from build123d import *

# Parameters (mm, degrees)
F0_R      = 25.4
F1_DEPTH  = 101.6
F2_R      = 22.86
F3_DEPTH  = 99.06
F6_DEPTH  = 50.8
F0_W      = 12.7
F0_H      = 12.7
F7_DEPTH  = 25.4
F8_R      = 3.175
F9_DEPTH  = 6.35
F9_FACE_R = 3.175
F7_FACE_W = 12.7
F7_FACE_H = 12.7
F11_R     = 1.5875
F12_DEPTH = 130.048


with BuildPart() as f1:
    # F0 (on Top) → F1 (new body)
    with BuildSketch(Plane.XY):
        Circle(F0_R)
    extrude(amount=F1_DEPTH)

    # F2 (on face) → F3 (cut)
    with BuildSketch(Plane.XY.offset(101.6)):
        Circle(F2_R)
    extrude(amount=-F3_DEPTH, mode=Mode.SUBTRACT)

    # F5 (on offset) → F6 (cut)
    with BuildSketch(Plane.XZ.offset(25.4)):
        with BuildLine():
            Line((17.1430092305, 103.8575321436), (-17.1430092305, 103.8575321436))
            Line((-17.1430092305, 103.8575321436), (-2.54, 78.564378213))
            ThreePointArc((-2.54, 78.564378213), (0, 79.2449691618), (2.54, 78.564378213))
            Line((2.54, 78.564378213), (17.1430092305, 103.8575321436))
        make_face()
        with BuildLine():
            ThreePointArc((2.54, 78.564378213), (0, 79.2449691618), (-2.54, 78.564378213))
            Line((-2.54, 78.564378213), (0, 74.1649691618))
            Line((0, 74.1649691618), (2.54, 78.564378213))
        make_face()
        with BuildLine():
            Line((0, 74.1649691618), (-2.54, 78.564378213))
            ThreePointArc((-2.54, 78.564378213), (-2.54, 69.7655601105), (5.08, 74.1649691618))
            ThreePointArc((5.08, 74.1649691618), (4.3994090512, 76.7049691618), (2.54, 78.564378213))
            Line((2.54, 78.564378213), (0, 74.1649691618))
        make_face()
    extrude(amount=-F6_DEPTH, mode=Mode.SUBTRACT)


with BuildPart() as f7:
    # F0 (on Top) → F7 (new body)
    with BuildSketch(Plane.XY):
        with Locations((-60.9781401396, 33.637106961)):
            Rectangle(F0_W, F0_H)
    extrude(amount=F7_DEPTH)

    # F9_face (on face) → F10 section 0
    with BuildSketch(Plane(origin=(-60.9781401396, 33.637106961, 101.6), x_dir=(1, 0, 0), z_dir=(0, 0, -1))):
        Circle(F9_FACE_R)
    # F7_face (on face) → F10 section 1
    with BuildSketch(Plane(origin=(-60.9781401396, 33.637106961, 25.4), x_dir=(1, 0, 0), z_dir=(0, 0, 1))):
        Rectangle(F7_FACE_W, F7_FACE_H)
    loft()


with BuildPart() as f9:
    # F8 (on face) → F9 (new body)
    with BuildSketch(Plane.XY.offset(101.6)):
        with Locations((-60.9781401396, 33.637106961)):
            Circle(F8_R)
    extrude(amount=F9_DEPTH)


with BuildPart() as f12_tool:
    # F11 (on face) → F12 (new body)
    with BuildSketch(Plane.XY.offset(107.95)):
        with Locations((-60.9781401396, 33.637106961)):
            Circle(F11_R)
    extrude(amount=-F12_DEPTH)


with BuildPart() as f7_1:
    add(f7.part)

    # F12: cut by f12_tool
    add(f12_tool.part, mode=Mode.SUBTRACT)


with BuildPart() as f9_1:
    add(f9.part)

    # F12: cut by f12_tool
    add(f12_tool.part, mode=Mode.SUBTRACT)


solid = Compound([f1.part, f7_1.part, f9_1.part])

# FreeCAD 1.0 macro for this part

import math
import FreeCAD as App
import Part
import Sketcher
Q = App.Units.Quantity

doc = App.newDocument("Part")
body = doc.addObject("PartDesign::Body", "Body")

# Sketch on XY plane
sketch1 = body.newObject("Sketcher::SketchObject", "Sketch")
sketch1.AttachmentSupport = (doc.getObject("XY_Plane"), [""])
sketch1.MapMode = "FlatFace"
sketch1.addGeometry(Part.Circle(App.Vector(0, 0, 0), App.Vector(0, 0, 1), 25), False)
sketch1.addConstraint([
    Sketcher.Constraint("Coincident", 0, 3, -1, 1),
    Sketcher.Constraint("Diameter", 0, Q("2 in")),
])
pad1 = body.newObject("PartDesign::Pad", "Pad")
pad1.Profile = sketch1
pad1.Length = Q("4 in")

# Sketch on XY plane
sketch2 = body.newObject("Sketcher::SketchObject", "Sketch001")
sketch2.AttachmentSupport = (doc.getObject("XY_Plane"), [""])
sketch2.MapMode = "FlatFace"
sketch2.AttachmentOffset = App.Placement(App.Vector(0, 0, 4 * 25.4), App.Rotation())
sketch2.addGeometry(Part.Circle(App.Vector(0, 0, 0), App.Vector(0, 0, 1), 23), False)
sketch2.addConstraint([
    Sketcher.Constraint("Coincident", 0, 3, -1, 1),
    Sketcher.Constraint("Diameter", 0, Q("1.8 in")),
])
pocket1 = body.newObject("PartDesign::Pocket", "Pocket")
pocket1.Profile = sketch2
pocket1.Length = Q("3.9 in")

# Sketch on XZ plane
sketch3 = body.newObject("Sketcher::SketchObject", "Sketch002")
sketch3.AttachmentSupport = (doc.getObject("XZ_Plane"), [""])
sketch3.MapMode = "FlatFace"
sketch3.AttachmentOffset = App.Placement(App.Vector(0, 0, 1 * 25.4), App.Rotation())
sketch3.addGeometry([
    Part.LineSegment(App.Vector(3, 79, 0), App.Vector(17, 104, 0)),  # 0
    Part.LineSegment(App.Vector(17, 104, 0), App.Vector(-17, 104, 0)),  # 1
    Part.LineSegment(App.Vector(-17, 104, 0), App.Vector(-3, 79, 0)),  # 2
    Part.ArcOfCircle(Part.Circle(App.Vector(0, 74, 0), App.Vector(0, 0, 1), 5), math.radians(120), math.radians(360)),  # 3
    Part.ArcOfCircle(Part.Circle(App.Vector(0, 74, 0), App.Vector(0, 0, 1), 5), math.radians(0), math.radians(60)),  # 4
], False)
sketch3.addConstraint([
    Sketcher.Constraint("Coincident", 0, 2, 1, 1),
    Sketcher.Constraint("Coincident", 1, 2, 2, 1),
    Sketcher.Constraint("Coincident", 2, 2, 3, 1),
    Sketcher.Constraint("Tangent", 3, 2, 4, 1),
    Sketcher.Constraint("Coincident", 4, 2, 0, 1),
    Sketcher.Constraint("Horizontal", 1),
    Sketcher.Constraint("Equal", 3, 4),
    Sketcher.Constraint("Symmetric", 2, 2, 4, 2, -2),
    Sketcher.Constraint("Horizontal", 4, 3, 3, 2),
    Sketcher.Constraint("Equal", 0, 2),
    Sketcher.Constraint("Radius", 3, Q("0.2 in")),
    Sketcher.Constraint("Angle", 0, Q("60 deg")),
    Sketcher.Constraint("DistanceX", 2, 2, -1, 1, Q("0.1 in")),
    Sketcher.Constraint("DistanceX", 1, 2, 1, 1, Q("34.286018 mm")),
    Sketcher.Constraint("DistanceY", -1, 1, 3, 3, Q("74.164969 mm")),
])
pocket2 = body.newObject("PartDesign::Pocket", "Pocket001")
pocket2.Profile = sketch3
pocket2.Length = Q("2 in")
body2 = doc.addObject("PartDesign::Body", "Body001")

# Sketch on XY plane
sketch4 = body2.newObject("Sketcher::SketchObject", "Sketch003")
sketch4.AttachmentSupport = (doc.getObject("XY_Plane001"), [""])
sketch4.MapMode = "FlatFace"
sketch4.addGeometry([
    Part.LineSegment(App.Vector(-67, 40, 0), App.Vector(-67, 27, 0)),
    Part.LineSegment(App.Vector(-67, 27, 0), App.Vector(-55, 27, 0)),
    Part.LineSegment(App.Vector(-55, 27, 0), App.Vector(-55, 40, 0)),
    Part.LineSegment(App.Vector(-55, 40, 0), App.Vector(-67, 40, 0)),
], False)
sketch4.addConstraint([
    Sketcher.Constraint("Coincident", 0, 2, 1, 1),
    Sketcher.Constraint("Coincident", 1, 2, 2, 1),
    Sketcher.Constraint("Coincident", 2, 2, 3, 1),
    Sketcher.Constraint("Coincident", 3, 2, 0, 1),
    Sketcher.Constraint("Vertical", 0),
    Sketcher.Constraint("Horizontal", 1),
    Sketcher.Constraint("Vertical", 2),
    Sketcher.Constraint("Horizontal", 3),
    Sketcher.Constraint("Equal", 3, 0),
    Sketcher.Constraint("DistanceX", 1, 1, 1, 2, Q("0.5 in")),
    Sketcher.Constraint("DistanceX", 0, 2, -1, 1, Q("67.32814 mm")),
    Sketcher.Constraint("DistanceY", -1, 1, 0, 2, Q("27.287107 mm")),
])
pad2 = body2.newObject("PartDesign::Pad", "Pad001")
pad2.Profile = sketch4
pad2.Length = Q("1 in")

# Sketch on XY plane
sketch5 = body2.newObject("Sketcher::SketchObject", "Sketch004")
sketch5.AttachmentSupport = (doc.getObject("XY_Plane001"), [""])
sketch5.MapMode = "FlatFace"
sketch5.AttachmentOffset = App.Placement(App.Vector(0, 0, 4 * 25.4), App.Rotation())
sketch5.addGeometry(Part.Circle(App.Vector(-61, 33.6, 0), App.Vector(0, 0, 1), 3.2), False)
sketch5.addConstraint([
    Sketcher.Constraint("Diameter", 0, Q("0.25 in")),
    Sketcher.Constraint("DistanceX", 0, 3, -1, 1, Q("60.97814 mm")),
    Sketcher.Constraint("DistanceY", -1, 1, 0, 3, Q("33.637107 mm")),
])

# Sketch on XY plane
sketch6 = body2.newObject("Sketcher::SketchObject", "Sketch005")
sketch6.AttachmentSupport = (doc.getObject("XY_Plane001"), [""])
sketch6.MapMode = "FlatFace"
sketch6.AttachmentOffset = App.Placement(App.Vector(0, 0, 1 * 25.4), App.Rotation())
sketch6.addGeometry([
    Part.LineSegment(App.Vector(-67, 40, 0), App.Vector(-67, 27, 0)),
    Part.LineSegment(App.Vector(-67, 27, 0), App.Vector(-55, 27, 0)),
    Part.LineSegment(App.Vector(-55, 27, 0), App.Vector(-55, 40, 0)),
    Part.LineSegment(App.Vector(-55, 40, 0), App.Vector(-67, 40, 0)),
], False)
sketch6.addConstraint([
    Sketcher.Constraint("Coincident", 0, 2, 1, 1),
    Sketcher.Constraint("Coincident", 1, 2, 2, 1),
    Sketcher.Constraint("Coincident", 2, 2, 3, 1),
    Sketcher.Constraint("Coincident", 3, 2, 0, 1),
    Sketcher.Constraint("Vertical", 0),
    Sketcher.Constraint("Horizontal", 1),
    Sketcher.Constraint("Vertical", 2),
    Sketcher.Constraint("Horizontal", 3),
    Sketcher.Constraint("Equal", 3, 0),
    Sketcher.Constraint("DistanceX", 1, 1, 1, 2, Q("0.5 in")),
    Sketcher.Constraint("DistanceX", 0, 2, -1, 1, Q("67.32814 mm")),
    Sketcher.Constraint("DistanceY", -1, 1, 0, 2, Q("27.287107 mm")),
])

additiveloft = body2.newObject("PartDesign::AdditiveLoft", "AdditiveLoft")
additiveloft.Profile = sketch5
additiveloft.Sections = [sketch6]
body3 = doc.addObject("PartDesign::Body", "Body002")

# Sketch on XY plane
sketch7 = body3.newObject("Sketcher::SketchObject", "Sketch006")
sketch7.AttachmentSupport = (doc.getObject("XY_Plane002"), [""])
sketch7.MapMode = "FlatFace"
sketch7.AttachmentOffset = App.Placement(App.Vector(0, 0, 4 * 25.4), App.Rotation())
sketch7.addGeometry(Part.Circle(App.Vector(-61, 33.6, 0), App.Vector(0, 0, 1), 3.2), False)
sketch7.addConstraint([
    Sketcher.Constraint("Diameter", 0, Q("0.25 in")),
    Sketcher.Constraint("DistanceX", 0, 3, -1, 1, Q("60.97814 mm")),
    Sketcher.Constraint("DistanceY", -1, 1, 0, 3, Q("33.637107 mm")),
])
pad3 = body3.newObject("PartDesign::Pad", "Pad002")
pad3.Profile = sketch7
pad3.Length = Q("0.25 in")
body4 = doc.addObject("PartDesign::Body", "Body003")

# Sketch on XY plane
sketch8 = body4.newObject("Sketcher::SketchObject", "Sketch007")
sketch8.AttachmentSupport = (doc.getObject("XY_Plane003"), [""])
sketch8.MapMode = "FlatFace"
sketch8.AttachmentOffset = App.Placement(App.Vector(0, 0, 4.25 * 25.4), App.Rotation())
sketch8.addGeometry(Part.Circle(App.Vector(-61, 33.6, 0), App.Vector(0, 0, 1), 1.6), False)
sketch8.addConstraint([
    Sketcher.Constraint("Diameter", 0, Q("0.125 in")),
    Sketcher.Constraint("DistanceX", 0, 3, -1, 1, Q("60.97814 mm")),
    Sketcher.Constraint("DistanceY", -1, 1, 0, 3, Q("33.637107 mm")),
])
pad4 = body4.newObject("PartDesign::Pad", "Pad003")
pad4.Profile = sketch8
pad4.Length = Q("5.12 in")
pad4.Reversed = True
doc.recompute()

body5 = doc.addObject("PartDesign::Body", "Body004")
body5.BaseFeature = body4
boolean = body2.newObject("PartDesign::Boolean", "Boolean")
boolean.Type = "Cut"
boolean.addObjects([body5])
doc.recompute()

boolean2 = body3.newObject("PartDesign::Boolean", "Boolean001")
boolean2.Type = "Cut"
boolean2.addObjects([body4])

doc.recompute()
